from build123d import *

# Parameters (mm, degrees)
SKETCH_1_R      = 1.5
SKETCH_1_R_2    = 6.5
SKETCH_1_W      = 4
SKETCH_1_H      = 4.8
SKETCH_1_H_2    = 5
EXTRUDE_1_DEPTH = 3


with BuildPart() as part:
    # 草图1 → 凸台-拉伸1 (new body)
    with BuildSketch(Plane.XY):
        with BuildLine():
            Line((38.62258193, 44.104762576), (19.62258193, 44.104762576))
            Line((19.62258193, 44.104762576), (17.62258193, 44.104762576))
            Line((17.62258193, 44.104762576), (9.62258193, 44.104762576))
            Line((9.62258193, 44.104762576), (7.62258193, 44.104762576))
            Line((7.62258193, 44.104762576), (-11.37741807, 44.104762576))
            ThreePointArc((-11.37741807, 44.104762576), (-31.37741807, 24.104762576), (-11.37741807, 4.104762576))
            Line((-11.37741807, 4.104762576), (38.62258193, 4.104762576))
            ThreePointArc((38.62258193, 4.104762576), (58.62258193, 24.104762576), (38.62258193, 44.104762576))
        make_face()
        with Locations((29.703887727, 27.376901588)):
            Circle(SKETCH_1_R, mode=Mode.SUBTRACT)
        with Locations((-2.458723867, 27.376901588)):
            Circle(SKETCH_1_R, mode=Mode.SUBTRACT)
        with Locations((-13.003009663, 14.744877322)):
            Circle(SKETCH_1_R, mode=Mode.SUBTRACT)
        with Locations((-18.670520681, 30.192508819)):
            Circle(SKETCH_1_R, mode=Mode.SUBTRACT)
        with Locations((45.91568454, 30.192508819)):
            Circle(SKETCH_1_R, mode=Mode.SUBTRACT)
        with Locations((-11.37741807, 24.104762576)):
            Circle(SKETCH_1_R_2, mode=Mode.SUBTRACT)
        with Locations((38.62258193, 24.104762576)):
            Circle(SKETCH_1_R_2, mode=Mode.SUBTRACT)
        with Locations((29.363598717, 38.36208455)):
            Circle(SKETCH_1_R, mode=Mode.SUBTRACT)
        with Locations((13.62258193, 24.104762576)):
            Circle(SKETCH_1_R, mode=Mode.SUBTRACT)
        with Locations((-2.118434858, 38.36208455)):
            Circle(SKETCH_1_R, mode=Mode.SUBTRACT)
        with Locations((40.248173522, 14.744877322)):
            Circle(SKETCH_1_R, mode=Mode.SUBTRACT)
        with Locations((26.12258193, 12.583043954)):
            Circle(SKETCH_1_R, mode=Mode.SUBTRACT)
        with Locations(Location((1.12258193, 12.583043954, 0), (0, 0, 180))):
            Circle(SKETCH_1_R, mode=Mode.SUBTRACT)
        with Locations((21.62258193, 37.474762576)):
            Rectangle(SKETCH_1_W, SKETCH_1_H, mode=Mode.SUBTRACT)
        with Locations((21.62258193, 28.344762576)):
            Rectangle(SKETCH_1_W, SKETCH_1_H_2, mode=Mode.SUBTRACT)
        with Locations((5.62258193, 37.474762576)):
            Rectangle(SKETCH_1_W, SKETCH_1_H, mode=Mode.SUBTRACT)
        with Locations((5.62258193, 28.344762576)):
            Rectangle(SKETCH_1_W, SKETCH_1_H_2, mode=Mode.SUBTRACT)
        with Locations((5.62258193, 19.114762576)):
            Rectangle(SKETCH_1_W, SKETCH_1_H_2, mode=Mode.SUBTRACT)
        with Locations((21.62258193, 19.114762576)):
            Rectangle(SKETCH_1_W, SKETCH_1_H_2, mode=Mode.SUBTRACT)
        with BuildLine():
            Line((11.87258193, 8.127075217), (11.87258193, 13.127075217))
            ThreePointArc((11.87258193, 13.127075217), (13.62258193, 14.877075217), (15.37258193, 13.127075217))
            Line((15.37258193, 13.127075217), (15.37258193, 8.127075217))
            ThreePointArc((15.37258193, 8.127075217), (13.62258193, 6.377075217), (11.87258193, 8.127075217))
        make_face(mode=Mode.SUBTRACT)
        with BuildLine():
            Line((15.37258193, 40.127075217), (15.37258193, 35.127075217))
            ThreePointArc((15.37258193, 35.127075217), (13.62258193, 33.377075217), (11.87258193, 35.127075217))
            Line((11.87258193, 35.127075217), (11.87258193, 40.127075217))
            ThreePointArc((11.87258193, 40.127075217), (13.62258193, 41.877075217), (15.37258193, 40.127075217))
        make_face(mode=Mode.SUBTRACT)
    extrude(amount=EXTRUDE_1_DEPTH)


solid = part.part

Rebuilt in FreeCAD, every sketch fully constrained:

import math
import FreeCAD as App
import Part
import Sketcher

V = App.Vector


def add_polygon(sketch, points):
    """Adds a closed chain of lines whose ends are joined by coincident constraints."""
    first, n = sketch.GeometryCount, len(points)
    for a, b in zip(points, points[1:] + points[:1]):
        sketch.addGeometry(Part.LineSegment(App.Vector(*a, 0), App.Vector(*b, 0)), False)
    for i in range(n):
        sketch.addConstraint(Sketcher.Constraint("Coincident", first + i, 2, first + (i + 1) % n, 1))

doc = App.newDocument("Part")
body = doc.addObject("PartDesign::Body", "Body")

# Sketch on XY plane
sketch1 = body.newObject("Sketcher::SketchObject", "Sketch")
sketch1.AttachmentSupport = (doc.getObject("XY_Plane"), [""])
sketch1.MapMode = "FlatFace"
sketch1.addGeometry(Part.LineSegment(V(38.622582, 44.104763, 0), V(-11.377418, 44.104763, 0)), False)  # 0
sketch1.addGeometry(Part.ArcOfCircle(Part.Circle(V(-11.377418, 24.104763, 0), V(0, 0, 1), 20), math.radians(90), math.radians(270)), False)  # 1
sketch1.addGeometry(Part.LineSegment(V(-11.377418, 4.104763, 0), V(38.622582, 4.104763, 0)), False)  # 2
sketch1.addGeometry(Part.ArcOfCircle(Part.Circle(V(38.622582, 24.104763, 0), V(0, 0, 1), 20), math.radians(-90), math.radians(90)), False)  # 3
sketch1.addGeometry(Part.Circle(V(-13.00301, 14.744877, 0), V(0, 0, 1), 1.5), False)  # 4
sketch1.addGeometry(Part.Circle(V(1.122582, 12.583044, 0), V(0, 0, 1), 1.5), False)  # 5
sketch1.addGeometry(Part.Circle(V(-11.377418, 24.104763, 0), V(0, 0, 1), 6.5), False)  # 6
add_polygon(sketch1, [(7.622582, 16.614763), (3.622582, 16.614763), (3.622582, 21.614763), (7.622582, 21.614763)])  # lines 7-10
sketch1.addGeometry(Part.ArcOfCircle(Part.Circle(V(13.622582, 8.127075, 0), V(0, 0, 1), 1.75), math.radians(180), math.radians(360)), False)  # 11
sketch1.addGeometry(Part.LineSegment(V(11.872582, 8.127075, 0), V(11.872582, 13.127075, 0)), False)  # 12
sketch1.addGeometry(Part.ArcOfCircle(Part.Circle(V(13.622582, 13.127075, 0), V(0, 0, 1), 1.75), math.radians(0), math.radians(180)), False)  # 13
sketch1.addGeometry(Part.LineSegment(V(15.372582, 13.127075, 0), V(15.372582, 8.127075, 0)), False)  # 14
sketch1.addGeometry(Part.Circle(V(26.122582, 12.583044, 0), V(0, 0, 1), 1.5), False)  # 15
sketch1.addGeometry(Part.Circle(V(40.248174, 14.744877, 0), V(0, 0, 1), 1.5), False)  # 16
add_polygon(sketch1, [(23.622582, 16.614763), (19.622582, 16.614763), (19.622582, 21.614763), (23.622582, 21.614763)])  # lines 17-20
sketch1.addGeometry(Part.Circle(V(13.622582, 24.104763, 0), V(0, 0, 1), 1.5), False)  # 21
sketch1.addGeometry(Part.Circle(V(38.622582, 24.104763, 0), V(0, 0, 1), 6.5), False)  # 22
sketch1.addGeometry(Part.Circle(V(-18.670521, 30.192509, 0), V(0, 0, 1), 1.5), False)  # 23
sketch1.addGeometry(Part.Circle(V(-2.458724, 27.376902, 0), V(0, 0, 1), 1.5), False)  # 24
add_polygon(sketch1, [(7.622582, 25.844763), (3.622582, 25.844763), (3.622582, 30.844763), (7.622582, 30.844763)])  # lines 25-28
sketch1.addGeometry(Part.Circle(V(-2.118435, 38.362085, 0), V(0, 0, 1), 1.5), False)  # 29
add_polygon(sketch1, [(7.622582, 35.074763), (3.622582, 35.074763), (3.622582, 39.874763), (7.622582, 39.874763)])  # lines 30-33
add_polygon(sketch1, [(23.622582, 25.844763), (19.622582, 25.844763), (19.622582, 30.844763), (23.622582, 30.844763)])  # lines 34-37
sketch1.addGeometry(Part.Circle(V(29.703888, 27.376902, 0), V(0, 0, 1), 1.5), False)  # 38
sketch1.addGeometry(Part.Circle(V(45.915685, 30.192509, 0), V(0, 0, 1), 1.5), False)  # 39
sketch1.addGeometry(Part.ArcOfCircle(Part.Circle(V(13.622582, 40.127075, 0), V(0, 0, 1), 1.75), math.radians(0), math.radians(180)), False)  # 40
sketch1.addGeometry(Part.LineSegment(V(15.372582, 40.127075, 0), V(15.372582, 35.127075, 0)), False)  # 41
sketch1.addGeometry(Part.ArcOfCircle(Part.Circle(V(13.622582, 35.127075, 0), V(0, 0, 1), 1.75), math.radians(180), math.radians(360)), False)  # 42
sketch1.addGeometry(Part.LineSegment(V(11.872582, 35.127075, 0), V(11.872582, 40.127075, 0)), False)  # 43
add_polygon(sketch1, [(23.622582, 35.074763), (19.622582, 35.074763), (19.622582, 39.874763), (23.622582, 39.874763)])  # lines 44-47
sketch1.addGeometry(Part.Circle(V(29.363599, 38.362085, 0), V(0, 0, 1), 1.5), False)  # 48
sketch1.addConstraint([
    Sketcher.Constraint("Tangent", 0, 2, 1, 1),
    Sketcher.Constraint("Tangent", 1, 2, 2, 1),
    Sketcher.Constraint("Tangent", 2, 2, 3, 1),
    Sketcher.Constraint("Tangent", 3, 2, 0, 1),
    Sketcher.Constraint("Tangent", 11, 1, 12, 1),
    Sketcher.Constraint("Tangent", 12, 2, 13, 2),
    Sketcher.Constraint("Tangent", 13, 1, 14, 1),
    Sketcher.Constraint("Tangent", 14, 2, 11, 2),
    Sketcher.Constraint("Tangent", 40, 1, 41, 1),
    Sketcher.Constraint("Tangent", 41, 2, 42, 2),
    Sketcher.Constraint("Tangent", 42, 1, 43, 1),
    Sketcher.Constraint("Tangent", 43, 2, 40, 2),
    Sketcher.Constraint("Horizontal", 0),
    Sketcher.Constraint("Horizontal", 2),
    Sketcher.Constraint("Horizontal", 7),
    Sketcher.Constraint("Vertical", 8),
    Sketcher.Constraint("Horizontal", 9),
    Sketcher.Constraint("Vertical", 10),
    Sketcher.Constraint("Vertical", 12),
    Sketcher.Constraint("Vertical", 14),
    Sketcher.Constraint("Horizontal", 17),
    Sketcher.Constraint("Vertical", 18),
    Sketcher.Constraint("Horizontal", 19),
    Sketcher.Constraint("Vertical", 20),
    Sketcher.Constraint("Horizontal", 25),
    Sketcher.Constraint("Vertical", 26),
    Sketcher.Constraint("Horizontal", 27),
    Sketcher.Constraint("Vertical", 28),
    Sketcher.Constraint("Horizontal", 30),
    Sketcher.Constraint("Vertical", 31),
    Sketcher.Constraint("Horizontal", 32),
    Sketcher.Constraint("Vertical", 33),
    Sketcher.Constraint("Horizontal", 34),
    Sketcher.Constraint("Vertical", 35),
    Sketcher.Constraint("Horizontal", 36),
    Sketcher.Constraint("Vertical", 37),
    Sketcher.Constraint("Vertical", 41),
    Sketcher.Constraint("Vertical", 43),
    Sketcher.Constraint("Horizontal", 44),
    Sketcher.Constraint("Vertical", 45),
    Sketcher.Constraint("Horizontal", 46),
    Sketcher.Constraint("Vertical", 47),
    Sketcher.Constraint("Coincident", 6, 3, 1, 3),
    Sketcher.Constraint("Coincident", 22, 3, 3, 3),
    Sketcher.Constraint("Equal", 4, 5),
    Sketcher.Constraint("Equal", 5, 15),
    Sketcher.Constraint("Equal", 15, 16),
    Sketcher.Constraint("Equal", 16, 21),
    Sketcher.Constraint("Equal", 6, 22),
    Sketcher.Constraint("Equal", 21, 23),
    Sketcher.Constraint("Equal", 23, 24),
    Sketcher.Constraint("Equal", 24, 29),
    Sketcher.Constraint("Equal", 29, 38),
    Sketcher.Constraint("Equal", 38, 39),
    Sketcher.Constraint("Equal", 13, 40),
    Sketcher.Constraint("Equal", 39, 48),
    Sketcher.Constraint("Horizontal", 5, 3, 15, 3),
    Sketcher.Constraint("Horizontal", 4, 3, 16, 3),
    Sketcher.Constraint("Horizontal", 6, 3, 21, 3),
    Sketcher.Constraint("Horizontal", 24, 3, 38, 3),
    Sketcher.Constraint("Horizontal", 23, 3, 39, 3),
    Sketcher.Constraint("Horizontal", 29, 3, 48, 3),
    Sketcher.Constraint("Horizontal", 10, 2, 17, 2),
    Sketcher.Constraint("Horizontal", 9, 2, 18, 2),
    Sketcher.Constraint("Horizontal", 28, 2, 34, 2),
    Sketcher.Constraint("Horizontal", 27, 2, 35, 2),
    Sketcher.Constraint("Horizontal", 33, 2, 44, 2),
    Sketcher.Constraint("Horizontal", 32, 2, 45, 2),
    Sketcher.Constraint("Vertical", 13, 3, 21, 3),
    Sketcher.Constraint("Vertical", 21, 3, 40, 3),
    Sketcher.Constraint("Vertical", 8, 2, 25, 2),
    Sketcher.Constraint("Vertical", 10, 2, 27, 2),
    Sketcher.Constraint("Vertical", 26, 2, 30, 2),
    Sketcher.Constraint("Vertical", 28, 2, 32, 2),
    Sketcher.Constraint("Vertical", 18, 2, 34, 2),
    Sketcher.Constraint("Vertical", 20, 2, 36, 2),
    Sketcher.Constraint("Vertical", 35, 2, 44, 2),
    Sketcher.Constraint("Vertical", 37, 2, 46, 2),
    Sketcher.Constraint("Equal", 9, 17),
    Sketcher.Constraint("Equal", 10, 12),
    Sketcher.Constraint("Equal", 20, 26),
    Sketcher.Constraint("Equal", 37, 41),
    Sketcher.Constraint("Diameter", 4, 3.0),
    Sketcher.Constraint("Diameter", 6, 13.0),
    Sketcher.Constraint("Radius", 1, 20.0),
    Sketcher.Constraint("DistanceX", 0, 2, 0, 1, 50.0),
    Sketcher.Constraint("DistanceX", 7, 2, 7, 1, 4.0),
    Sketcher.Constraint("DistanceY", 8, 1, 8, 2, 5.0),
    Sketcher.Constraint("Radius", 11, 1.75),
    Sketcher.Constraint("DistanceY", 31, 1, 31, 2, 4.8),
    Sketcher.Constraint("DistanceX", 1, 3, 11, 3, 25.0),
    Sketcher.Constraint("DistanceX", 5, 3, 15, 3, 25.0),
    Sketcher.Constraint("DistanceY", 13, 3, 40, 3, 27.0),
    Sketcher.Constraint("DistanceX", 7, 2, 13, 3, 10.0),
    Sketcher.Constraint("DistanceX", 13, 3, 17, 2, 6.0),
    Sketcher.Constraint("DistanceX", 1, 3, 5, 3, 12.5),
    Sketcher.Constraint("DistanceY", 7, 2, 21, 3, 7.49),
    Sketcher.Constraint("DistanceY", 8, 2, 25, 2, 4.23),
    Sketcher.Constraint("DistanceY", 26, 2, 30, 2, 4.23),
    Sketcher.Constraint("DistanceY", -1, 1, 24, 3, 27.376902),
    Sketcher.Constraint("DistanceX", -1, 1, 48, 3, 29.363599),
    Sketcher.Constraint("DistanceX", 1, 3, -1, 1, 11.377418),
    Sketcher.Constraint("DistanceX", 4, 3, -1, 1, 13.00301),
    Sketcher.Constraint("DistanceX", 23, 3, -1, 1, 18.670521),
    Sketcher.Constraint("DistanceY", -1, 1, 23, 3, 30.192509),
    Sketcher.Constraint("DistanceY", 5, 3, 1, 3, 11.521719),
    Sketcher.Constraint("DistanceY", 11, 3, 5, 3, 4.455969),
    Sketcher.Constraint("DistanceX", 3, 3, 16, 3, 1.625592),
    Sketcher.Constraint("DistanceY", 4, 3, 23, 3, 15.447631),
    Sketcher.Constraint("DistanceY", 1, 3, 24, 3, 3.272139),
    Sketcher.Constraint("DistanceX", 24, 3, 29, 3, 0.340289),
    Sketcher.Constraint("DistanceY", 1, 3, 29, 3, 14.257322),
    Sketcher.Constraint("DistanceX", 16, 3, 39, 3, 5.667511),
    Sketcher.Constraint("DistanceX", 48, 3, 38, 3, 0.340289),
    Sketcher.Constraint("DistanceX", 24, 3, -1, 1, 2.458724),
])
pad1 = body.newObject("PartDesign::Pad", "Pad")
pad1.Profile = sketch1
pad1.Length = 3

doc.recompute()
